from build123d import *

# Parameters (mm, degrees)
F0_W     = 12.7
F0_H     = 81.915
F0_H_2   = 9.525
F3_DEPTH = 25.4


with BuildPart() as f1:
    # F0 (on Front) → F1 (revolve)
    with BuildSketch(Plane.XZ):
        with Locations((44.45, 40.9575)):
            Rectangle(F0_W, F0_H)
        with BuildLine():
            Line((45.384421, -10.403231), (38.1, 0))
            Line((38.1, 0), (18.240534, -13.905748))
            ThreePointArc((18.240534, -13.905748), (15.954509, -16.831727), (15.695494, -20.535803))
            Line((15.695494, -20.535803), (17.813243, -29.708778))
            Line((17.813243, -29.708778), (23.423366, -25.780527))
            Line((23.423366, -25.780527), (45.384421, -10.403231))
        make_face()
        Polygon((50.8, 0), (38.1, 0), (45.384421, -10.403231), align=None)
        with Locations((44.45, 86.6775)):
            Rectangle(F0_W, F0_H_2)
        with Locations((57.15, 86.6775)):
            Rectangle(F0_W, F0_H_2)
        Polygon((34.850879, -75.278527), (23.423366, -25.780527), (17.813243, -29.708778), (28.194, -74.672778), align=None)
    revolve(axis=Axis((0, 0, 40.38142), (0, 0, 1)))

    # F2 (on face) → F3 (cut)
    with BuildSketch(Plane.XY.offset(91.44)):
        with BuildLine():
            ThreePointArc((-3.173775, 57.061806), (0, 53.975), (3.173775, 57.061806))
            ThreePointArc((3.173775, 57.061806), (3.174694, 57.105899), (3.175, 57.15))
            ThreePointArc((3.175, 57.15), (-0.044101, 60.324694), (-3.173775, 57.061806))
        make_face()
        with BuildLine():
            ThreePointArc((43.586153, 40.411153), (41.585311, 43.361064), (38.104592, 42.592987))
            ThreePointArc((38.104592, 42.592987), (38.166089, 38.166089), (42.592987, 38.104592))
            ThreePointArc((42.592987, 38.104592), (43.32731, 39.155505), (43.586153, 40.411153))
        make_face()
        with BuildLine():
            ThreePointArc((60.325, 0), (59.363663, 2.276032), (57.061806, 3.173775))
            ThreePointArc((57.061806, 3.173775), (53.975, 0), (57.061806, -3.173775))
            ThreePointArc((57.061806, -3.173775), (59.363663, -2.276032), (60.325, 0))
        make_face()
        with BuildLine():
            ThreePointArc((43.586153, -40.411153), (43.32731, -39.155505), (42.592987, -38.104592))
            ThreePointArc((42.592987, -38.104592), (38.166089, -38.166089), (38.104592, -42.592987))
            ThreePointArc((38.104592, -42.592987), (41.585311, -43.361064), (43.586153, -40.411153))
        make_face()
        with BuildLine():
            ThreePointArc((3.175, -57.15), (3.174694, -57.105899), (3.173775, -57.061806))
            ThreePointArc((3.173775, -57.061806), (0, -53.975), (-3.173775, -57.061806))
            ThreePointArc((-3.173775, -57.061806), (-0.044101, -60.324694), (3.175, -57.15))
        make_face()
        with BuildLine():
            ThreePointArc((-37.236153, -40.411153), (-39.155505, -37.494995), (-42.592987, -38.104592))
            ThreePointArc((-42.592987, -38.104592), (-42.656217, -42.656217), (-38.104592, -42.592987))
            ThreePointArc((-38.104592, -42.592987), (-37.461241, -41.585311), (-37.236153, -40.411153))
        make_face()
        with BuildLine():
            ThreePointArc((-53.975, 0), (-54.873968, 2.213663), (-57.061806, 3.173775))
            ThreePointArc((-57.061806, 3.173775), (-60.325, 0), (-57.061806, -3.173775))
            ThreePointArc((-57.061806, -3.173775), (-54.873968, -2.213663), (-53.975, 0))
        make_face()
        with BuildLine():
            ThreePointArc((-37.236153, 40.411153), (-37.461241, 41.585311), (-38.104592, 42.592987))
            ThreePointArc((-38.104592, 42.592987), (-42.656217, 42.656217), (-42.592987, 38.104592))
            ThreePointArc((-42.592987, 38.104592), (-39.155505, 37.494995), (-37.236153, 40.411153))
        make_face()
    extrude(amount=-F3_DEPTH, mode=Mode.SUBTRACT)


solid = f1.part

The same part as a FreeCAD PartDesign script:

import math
import FreeCAD as App
import Part
import Sketcher

V = App.Vector
Q = App.Units.Quantity

doc = App.newDocument("Part")
body = doc.addObject("PartDesign::Body", "Body")

# Sketch on XZ plane
sketch1 = body.newObject("Sketcher::SketchObject", "Sketch")
sketch1.AttachmentSupport = (doc.getObject("XZ_Plane"), [""])
sketch1.MapMode = "FlatFace"
sketch1.addGeometry(Part.LineSegment(V(38, 0, 0), V(18, -14, 0)), False)
sketch1.addGeometry(Part.ArcOfCircle(Part.Circle(V(22, -19, 0), V(0, 0, 1), 6), math.radians(125), math.radians(193)), False)
sketch1.addGeometry(Part.LineSegment(V(16, -21, 0), V(18, -30, 0)), False)
sketch1.addGeometry(Part.LineSegment(V(18, -30, 0), V(28, -75, 0)), False)
sketch1.addGeometry(Part.LineSegment(V(28, -75, 0), V(35, -75, 0)), False)
sketch1.addGeometry(Part.LineSegment(V(35, -75, 0), V(23, -26, 0)), False)
sketch1.addGeometry(Part.LineSegment(V(23, -26, 0), V(45, -10, 0)), False)
sketch1.addGeometry(Part.LineSegment(V(45, -10, 0), V(51, 0, 0)), False)
sketch1.addGeometry(Part.LineSegment(V(51, 0, 0), V(51, 82, 0)), False)
sketch1.addGeometry(Part.LineSegment(V(51, 82, 0), V(64, 82, 0)), False)
sketch1.addGeometry(Part.LineSegment(V(64, 82, 0), V(64, 91, 0)), False)
sketch1.addGeometry(Part.LineSegment(V(64, 91, 0), V(38, 91, 0)), False)
sketch1.addGeometry(Part.LineSegment(V(38, 91, 0), V(38, 0, 0)), False)
sketch1.addConstraint(Sketcher.Constraint("Tangent", 0, 2, 1, 1))
sketch1.addConstraint(Sketcher.Constraint("Tangent", 1, 2, 2, 1))
sketch1.addConstraint(Sketcher.Constraint("Coincident", 2, 2, 3, 1))
sketch1.addConstraint(Sketcher.Constraint("Coincident", 3, 2, 4, 1))
sketch1.addConstraint(Sketcher.Constraint("Coincident", 4, 2, 5, 1))
sketch1.addConstraint(Sketcher.Constraint("Coincident", 5, 2, 6, 1))
sketch1.addConstraint(Sketcher.Constraint("Coincident", 6, 2, 7, 1))
sketch1.addConstraint(Sketcher.Constraint("Coincident", 7, 2, 8, 1))
sketch1.addConstraint(Sketcher.Constraint("Coincident", 8, 2, 9, 1))
sketch1.addConstraint(Sketcher.Constraint("Coincident", 9, 2, 10, 1))
sketch1.addConstraint(Sketcher.Constraint("Coincident", 10, 2, 11, 1))
sketch1.addConstraint(Sketcher.Constraint("Coincident", 11, 2, 12, 1))
sketch1.addConstraint(Sketcher.Constraint("Coincident", 12, 2, 0, 1))
sketch1.addConstraint(Sketcher.Constraint("Vertical", 8))
sketch1.addConstraint(Sketcher.Constraint("Horizontal", 9))
sketch1.addConstraint(Sketcher.Constraint("Vertical", 10))
sketch1.addConstraint(Sketcher.Constraint("Horizontal", 11))
sketch1.addConstraint(Sketcher.Constraint("Vertical", 12))
sketch1.addConstraint(Sketcher.Constraint("PointOnObject", 7, 2, -1))
sketch1.addConstraint(Sketcher.Constraint("PointOnObject", 12, 2, -1))
sketch1.addConstraint(Sketcher.Constraint("Parallel", 2, 3))
sketch1.addConstraint(Sketcher.Constraint("Parallel", 3, 5))
sketch1.addConstraint(Sketcher.Constraint("Parallel", 0, 6))
sketch1.addConstraint(Sketcher.Constraint("DistanceX", 11, 2, 11, 1, Q("1 in")))
sketch1.addConstraint(Sketcher.Constraint("Radius", 1, Q("0.2500001 in")))
sketch1.addConstraint(Sketcher.Constraint("Distance", 5, Q("2 in")))
sketch1.addConstraint(Sketcher.Constraint("DistanceX", 9, 1, 9, 2, Q("0.5 in")))
sketch1.addConstraint(Sketcher.Constraint("DistanceY", 12, 2, 12, 1, Q("3.6 in")))
sketch1.addConstraint(Sketcher.Constraint("DistanceX", -1, 1, 7, 2, Q("2 in")))
sketch1.addConstraint(Sketcher.Constraint("Angle", 0, Q("-145 deg")))
sketch1.addConstraint(Sketcher.Constraint("Angle", 2, Q("-76.999995 deg")))
sketch1.addConstraint(Sketcher.Constraint("Angle", 7, Q("62.500001 deg")))
sketch1.addConstraint(Sketcher.Constraint("DistanceY", 8, 1, 8, 2, Q("3.225 in")))
sketch1.addConstraint(Sketcher.Constraint("DistanceX", -1, 1, 3, 2, Q("1.11 in")))
sketch1.addConstraint(Sketcher.Constraint("DistanceY", 3, 2, 2, 2, Q("44.964 mm")))
sketch1.addConstraint(Sketcher.Constraint("Distance", 0, Q("24.243932 mm")))
sketch1.addConstraint(Sketcher.Constraint("DistanceX", -1, 1, 4, 2, Q("34.850879 mm")))
sketch1.addConstraint(Sketcher.Constraint("DistanceX", -1, 1, 6, 2, Q("45.384421 mm")))
revolution = body.newObject("PartDesign::Revolution", "Revolution")
revolution.Profile = sketch1
revolution.ReferenceAxis = (sketch1, ["V_Axis"])
revolution.Angle = 360

# Sketch on XY plane
sketch2 = body.newObject("Sketcher::SketchObject", "Sketch001")
sketch2.AttachmentSupport = (doc.getObject("XY_Plane"), [""])
sketch2.MapMode = "FlatFace"
sketch2.AttachmentOffset = App.Placement(V(0, 0, 3.6 * 25.4), App.Rotation())
sketch2.addGeometry(Part.ArcOfCircle(Part.Circle(V(0, 57.15, 0), V(0, 0, 1), 3.18), math.radians(-178), math.radians(-2)), False)
sketch2.addGeometry(Part.ArcOfCircle(Part.Circle(V(0, 57.15, 0), V(0, 0, 1), 3.17), math.radians(-1.59), math.radians(0)), False)
sketch2.addGeometry(Part.ArcOfCircle(Part.Circle(V(0, 57.15, 0), V(0, 0, 1), 3.18), math.radians(0), math.radians(182)), False)
sketch2.addGeometry(Part.ArcOfCircle(Part.Circle(V(40.41, 40.41, 0), V(0, 0, 1), 3.18), math.radians(0), math.radians(137)), False)
sketch2.addGeometry(Part.ArcOfCircle(Part.Circle(V(40.41, 40.41, 0), V(0, 0, 1), 3.17), math.radians(137), math.radians(313)), False)
sketch2.addGeometry(Part.ArcOfCircle(Part.Circle(V(40.41, 40.41, 0), V(0, 0, 1), 3.18), math.radians(-47), math.radians(0)), False)
sketch2.addGeometry(Part.ArcOfCircle(Part.Circle(V(57.15, 0, 0), V(0, 0, 1), 3.18), math.radians(0), math.radians(92)), False)
sketch2.addGeometry(Part.ArcOfCircle(Part.Circle(V(57.15, 0, 0), V(0, 0, 1), 3.18), math.radians(92), math.radians(268)), False)
sketch2.addGeometry(Part.ArcOfCircle(Part.Circle(V(57.15, 0, 0), V(0, 0, 1), 3.18), math.radians(-92), math.radians(0)), False)
sketch2.addGeometry(Part.ArcOfCircle(Part.Circle(V(40.41, -40.41, 0), V(0, 0, 1), 3.18), math.radians(0), math.radians(47)), False)
sketch2.addGeometry(Part.ArcOfCircle(Part.Circle(V(40.41, -40.41, 0), V(0, 0, 1), 3.17), math.radians(47), math.radians(223)), False)
sketch2.addGeometry(Part.ArcOfCircle(Part.Circle(V(40.41, -40.41, 0), V(0, 0, 1), 3.18), math.radians(-137), math.radians(0)), False)
sketch2.addGeometry(Part.ArcOfCircle(Part.Circle(V(0, -57.15, 0), V(0, 0, 1), 3.17), math.radians(0), math.radians(1.59)), False)
sketch2.addGeometry(Part.ArcOfCircle(Part.Circle(V(0, -57.15, 0), V(0, 0, 1), 3.18), math.radians(2), math.radians(178)), False)
sketch2.addGeometry(Part.ArcOfCircle(Part.Circle(V(0, -57.15, 0), V(0, 0, 1), 3.18), math.radians(178), math.radians(360)), False)
sketch2.addGeometry(Part.ArcOfCircle(Part.Circle(V(-40.41, -40.41, 0), V(0, 0, 1), 3.17), math.radians(0), math.radians(133)), False)
sketch2.addGeometry(Part.ArcOfCircle(Part.Circle(V(-40.41, -40.41, 0), V(0, 0, 1), 3.17), math.radians(133), math.radians(317)), False)
sketch2.addGeometry(Part.ArcOfCircle(Part.Circle(V(-40.41, -40.41, 0), V(0, 0, 1), 3.17), math.radians(-43), math.radians(0)), False)
sketch2.addGeometry(Part.ArcOfCircle(Part.Circle(V(-57.15, 0, 0), V(0, 0, 1), 3.18), math.radians(0), math.radians(88)), False)
sketch2.addGeometry(Part.ArcOfCircle(Part.Circle(V(-57.15, 0, 0), V(0, 0, 1), 3.18), math.radians(88), math.radians(272)), False)
sketch2.addGeometry(Part.ArcOfCircle(Part.Circle(V(-57.15, 0, 0), V(0, 0, 1), 3.18), math.radians(-88), math.radians(0)), False)
sketch2.addGeometry(Part.ArcOfCircle(Part.Circle(V(-40.41, 40.41, 0), V(0, 0, 1), 3.17), math.radians(0), math.radians(43)), False)
sketch2.addGeometry(Part.ArcOfCircle(Part.Circle(V(-40.41, 40.41, 0), V(0, 0, 1), 3.17), math.radians(43), math.radians(227)), False)
sketch2.addGeometry(Part.ArcOfCircle(Part.Circle(V(-40.41, 40.41, 0), V(0, 0, 1), 3.17), math.radians(-133), math.radians(0)), False)
sketch2.addConstraint(Sketcher.Constraint("Coincident", 0, 2, 1, 1))
sketch2.addConstraint(Sketcher.Constraint("Coincident", 1, 2, 2, 1))
sketch2.addConstraint(Sketcher.Constraint("Tangent", 2, 2, 0, 1))
sketch2.addConstraint(Sketcher.Constraint("Tangent", 3, 2, 4, 1))
sketch2.addConstraint(Sketcher.Constraint("Tangent", 4, 2, 5, 1))
sketch2.addConstraint(Sketcher.Constraint("Tangent", 5, 2, 3, 1))
sketch2.addConstraint(Sketcher.Constraint("Tangent", 6, 2, 7, 1))
sketch2.addConstraint(Sketcher.Constraint("Tangent", 7, 2, 8, 1))
sketch2.addConstraint(Sketcher.Constraint("Tangent", 8, 2, 6, 1))
sketch2.addConstraint(Sketcher.Constraint("Tangent", 9, 2, 10, 1))
sketch2.addConstraint(Sketcher.Constraint("Tangent", 10, 2, 11, 1))
sketch2.addConstraint(Sketcher.Constraint("Tangent", 11, 2, 9, 1))
sketch2.addConstraint(Sketcher.Constraint("Coincident", 12, 2, 13, 1))
sketch2.addConstraint(Sketcher.Constraint("Tangent", 13, 2, 14, 1))
sketch2.addConstraint(Sketcher.Constraint("Coincident", 14, 2, 12, 1))
sketch2.addConstraint(Sketcher.Constraint("Tangent", 15, 2, 16, 1))
sketch2.addConstraint(Sketcher.Constraint("Tangent", 16, 2, 17, 1))
sketch2.addConstraint(Sketcher.Constraint("Tangent", 17, 2, 15, 1))
sketch2.addConstraint(Sketcher.Constraint("Tangent", 18, 2, 19, 1))
sketch2.addConstraint(Sketcher.Constraint("Tangent", 19, 2, 20, 1))
sketch2.addConstraint(Sketcher.Constraint("Tangent", 20, 2, 18, 1))
sketch2.addConstraint(Sketcher.Constraint("Tangent", 21, 2, 22, 1))
sketch2.addConstraint(Sketcher.Constraint("Tangent", 22, 2, 23, 1))
sketch2.addConstraint(Sketcher.Constraint("Tangent", 23, 2, 21, 1))
sketch2.addConstraint(Sketcher.Constraint("Equal", 0, 2))
sketch2.addConstraint(Sketcher.Constraint("Equal", 2, 3))
sketch2.addConstraint(Sketcher.Constraint("Equal", 5, 6))
sketch2.addConstraint(Sketcher.Constraint("Equal", 8, 9))
sketch2.addConstraint(Sketcher.Constraint("Equal", 1, 12))
sketch2.addConstraint(Sketcher.Constraint("Equal", 11, 13))
sketch2.addConstraint(Sketcher.Constraint("Equal", 13, 14))
sketch2.addConstraint(Sketcher.Constraint("Equal", 14, 15))
sketch2.addConstraint(Sketcher.Constraint("Equal", 16, 18))
sketch2.addConstraint(Sketcher.Constraint("Equal", 17, 21))
sketch2.addConstraint(Sketcher.Constraint("Symmetric", 0, 3, 13, 3, -1, 1))
sketch2.addConstraint(Sketcher.Constraint("Symmetric", 3, 3, 15, 3, -1, 1))
sketch2.addConstraint(Sketcher.Constraint("Symmetric", 6, 3, 18, 3, -1, 1))
sketch2.addConstraint(Sketcher.Constraint("Symmetric", 9, 3, 21, 3, -1, 1))
sketch2.addConstraint(Sketcher.Constraint("Symmetric", 9, 3, 15, 3, -2))
sketch2.addConstraint(Sketcher.Constraint("Symmetric", 0, 2, 2, 2, -2))
sketch2.addConstraint(Sketcher.Constraint("Symmetric", 6, 2, 18, 2, -2))
sketch2.addConstraint(Sketcher.Constraint("PointOnObject", 8, 2, -1))
sketch2.addConstraint(Sketcher.Constraint("PointOnObject", 20, 2, -1))
sketch2.addConstraint(Sketcher.Constraint("Horizontal", 2, 3, 1, 2))
sketch2.addConstraint(Sketcher.Constraint("Horizontal", 23, 3, 5, 2))
sketch2.addConstraint(Sketcher.Constraint("Horizontal", 16, 3, 11, 2))
sketch2.addConstraint(Sketcher.Constraint("Horizontal", 12, 2, 13, 2))
sketch2.addConstraint(Sketcher.Constraint("Horizontal", 13, 3, 14, 2))
sketch2.addConstraint(Sketcher.Constraint("Horizontal", 9, 2, 15, 2))
sketch2.addConstraint(Sketcher.Constraint("Horizontal", 10, 2, 16, 2))
sketch2.addConstraint(Sketcher.Constraint("Horizontal", 11, 2, 17, 2))
sketch2.addConstraint(Sketcher.Constraint("Horizontal", 7, 2, 19, 2))
sketch2.addConstraint(Sketcher.Constraint("Horizontal", 3, 2, 21, 2))
sketch2.addConstraint(Sketcher.Constraint("Horizontal", 4, 2, 22, 2))
sketch2.addConstraint(Sketcher.Constraint("Horizontal", 5, 2, 23, 2))
sketch2.addConstraint(Sketcher.Constraint("Vertical", 6, 2, 7, 2))
sketch2.addConstraint(Sketcher.Constraint("Vertical", 4, 2, 9, 2))
sketch2.addConstraint(Sketcher.Constraint("Vertical", 3, 2, 10, 2))
sketch2.addConstraint(Sketcher.Constraint("Vertical", 0, 2, 12, 2))
sketch2.addConstraint(Sketcher.Constraint("Radius", 0, Q("0.125 in")))
sketch2.addConstraint(Sketcher.Constraint("DistanceY", -1, 1, 0, 3, Q("2.25 in")))
sketch2.addConstraint(Sketcher.Constraint("DistanceX", -1, 1, 6, 3, Q("2.25 in")))
sketch2.addConstraint(Sketcher.Constraint("Radius", 1, Q("3.172675 mm")))
sketch2.addConstraint(Sketcher.Constraint("DistanceX", 2, 2, 1, 3, Q("3.1761 mm")))
sketch2.addConstraint(Sketcher.Constraint("DistanceY", 15, 3, -1, 1, Q("40.411152 mm")))
sketch2.addConstraint(Sketcher.Constraint("DistanceY", -1, 1, 4, 2, Q("38.104592 mm")))
sketch2.addConstraint(Sketcher.Constraint("DistanceX", -1, 1, 10, 2, Q("38.104592 mm")))
sketch2.addConstraint(Sketcher.Constraint("DistanceX", 5, 3, 7, 3, Q("16.738848 mm")))
sketch2.addConstraint(Sketcher.Constraint("DistanceX", 4, 2, 6, 2, Q("14.468819 mm")))
pocket1 = body.newObject("PartDesign::Pocket", "Pocket")
pocket1.Profile = sketch2
pocket1.Length = Q("1 in")

doc.recompute()
